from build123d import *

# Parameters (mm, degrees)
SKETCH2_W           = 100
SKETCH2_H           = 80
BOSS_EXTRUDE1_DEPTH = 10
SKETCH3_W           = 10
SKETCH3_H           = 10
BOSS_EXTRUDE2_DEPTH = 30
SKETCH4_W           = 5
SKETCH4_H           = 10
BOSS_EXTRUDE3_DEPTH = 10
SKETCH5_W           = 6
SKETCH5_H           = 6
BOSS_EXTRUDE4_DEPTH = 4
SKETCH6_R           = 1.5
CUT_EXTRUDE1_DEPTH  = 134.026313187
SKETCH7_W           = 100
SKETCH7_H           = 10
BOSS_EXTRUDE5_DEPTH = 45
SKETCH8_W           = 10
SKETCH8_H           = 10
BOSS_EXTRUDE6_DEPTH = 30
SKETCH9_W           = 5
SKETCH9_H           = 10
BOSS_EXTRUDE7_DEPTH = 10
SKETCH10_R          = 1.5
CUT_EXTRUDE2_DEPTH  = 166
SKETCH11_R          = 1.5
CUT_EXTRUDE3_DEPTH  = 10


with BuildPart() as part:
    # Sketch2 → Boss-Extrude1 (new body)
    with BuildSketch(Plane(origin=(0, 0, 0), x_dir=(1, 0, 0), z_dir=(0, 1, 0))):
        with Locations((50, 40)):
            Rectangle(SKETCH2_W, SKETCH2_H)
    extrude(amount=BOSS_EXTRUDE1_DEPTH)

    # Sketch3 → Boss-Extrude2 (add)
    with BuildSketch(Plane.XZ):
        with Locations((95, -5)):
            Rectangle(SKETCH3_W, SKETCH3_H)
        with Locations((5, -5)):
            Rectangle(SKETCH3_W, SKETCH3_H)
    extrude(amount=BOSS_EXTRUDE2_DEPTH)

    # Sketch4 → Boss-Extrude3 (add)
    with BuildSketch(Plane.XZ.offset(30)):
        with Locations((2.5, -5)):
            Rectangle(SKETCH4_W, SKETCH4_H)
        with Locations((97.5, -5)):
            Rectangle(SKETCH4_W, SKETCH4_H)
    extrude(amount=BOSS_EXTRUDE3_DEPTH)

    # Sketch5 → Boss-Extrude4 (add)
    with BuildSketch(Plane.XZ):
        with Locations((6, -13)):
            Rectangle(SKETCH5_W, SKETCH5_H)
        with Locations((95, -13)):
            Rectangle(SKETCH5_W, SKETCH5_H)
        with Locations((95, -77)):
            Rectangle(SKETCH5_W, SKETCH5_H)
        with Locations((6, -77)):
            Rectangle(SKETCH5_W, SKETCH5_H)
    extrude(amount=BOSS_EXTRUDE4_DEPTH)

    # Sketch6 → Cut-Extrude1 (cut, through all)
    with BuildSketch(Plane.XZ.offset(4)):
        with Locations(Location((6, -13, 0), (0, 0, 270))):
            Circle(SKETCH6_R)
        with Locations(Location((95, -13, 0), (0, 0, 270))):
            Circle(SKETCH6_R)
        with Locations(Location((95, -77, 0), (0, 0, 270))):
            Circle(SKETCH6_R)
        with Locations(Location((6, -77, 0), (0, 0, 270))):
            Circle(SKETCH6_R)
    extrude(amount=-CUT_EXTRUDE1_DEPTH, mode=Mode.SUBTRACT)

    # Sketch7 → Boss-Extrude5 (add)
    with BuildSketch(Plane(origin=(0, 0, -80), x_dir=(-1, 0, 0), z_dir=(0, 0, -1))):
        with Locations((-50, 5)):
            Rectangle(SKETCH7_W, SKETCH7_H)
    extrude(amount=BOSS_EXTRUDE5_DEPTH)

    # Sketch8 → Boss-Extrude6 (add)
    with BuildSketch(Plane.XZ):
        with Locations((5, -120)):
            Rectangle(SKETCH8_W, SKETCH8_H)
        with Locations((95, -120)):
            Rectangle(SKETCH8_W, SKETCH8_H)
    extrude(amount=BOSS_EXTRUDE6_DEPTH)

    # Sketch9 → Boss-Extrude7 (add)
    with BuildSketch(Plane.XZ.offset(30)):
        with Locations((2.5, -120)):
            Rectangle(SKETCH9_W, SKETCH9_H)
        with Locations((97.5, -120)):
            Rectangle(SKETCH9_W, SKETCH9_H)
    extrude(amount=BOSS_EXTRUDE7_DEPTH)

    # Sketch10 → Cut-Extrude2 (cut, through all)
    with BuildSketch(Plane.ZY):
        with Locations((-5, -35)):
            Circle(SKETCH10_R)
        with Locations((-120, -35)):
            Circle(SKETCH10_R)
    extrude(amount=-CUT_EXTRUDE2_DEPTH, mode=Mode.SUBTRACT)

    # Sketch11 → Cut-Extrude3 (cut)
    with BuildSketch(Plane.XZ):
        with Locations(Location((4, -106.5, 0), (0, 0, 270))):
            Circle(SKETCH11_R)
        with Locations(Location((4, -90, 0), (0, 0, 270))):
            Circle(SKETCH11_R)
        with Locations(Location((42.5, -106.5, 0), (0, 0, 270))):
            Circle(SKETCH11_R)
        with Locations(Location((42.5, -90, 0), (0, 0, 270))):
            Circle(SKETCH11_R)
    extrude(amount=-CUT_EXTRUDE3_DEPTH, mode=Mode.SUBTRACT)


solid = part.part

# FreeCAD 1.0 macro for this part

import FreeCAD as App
import Part
import Sketcher

V = App.Vector


def add_polygon(sketch, points):
    """Adds a closed chain of lines whose ends are joined by coincident constraints."""
    first, n = sketch.GeometryCount, len(points)
    for a, b in zip(points, points[1:] + points[:1]):
        sketch.addGeometry(Part.LineSegment(App.Vector(*a, 0), App.Vector(*b, 0)), False)
    for i in range(n):
        sketch.addConstraint(Sketcher.Constraint("Coincident", first + i, 2, first + (i + 1) % n, 1))

doc = App.newDocument("Part")
body = doc.addObject("PartDesign::Body", "Body")

sketch1 = body.newObject("Sketcher::SketchObject", "Sketch")
sketch1.AttachmentSupport = (doc.getObject("XZ_Plane"), [""])
sketch1.MapMode = "FlatFace"
add_polygon(sketch1, [(0, -80), (0, 0), (100, 0), (100, -80)])
sketch1.addConstraint(Sketcher.Constraint("Vertical", 0))
sketch1.addConstraint(Sketcher.Constraint("Horizontal", 1))
sketch1.addConstraint(Sketcher.Constraint("Vertical", 2))
sketch1.addConstraint(Sketcher.Constraint("Horizontal", 3))
sketch1.addConstraint(Sketcher.Constraint("Coincident", 0, 2, -1, 1))
sketch1.addConstraint(Sketcher.Constraint("DistanceX", 1, 1, 1, 2, 100.0))
sketch1.addConstraint(Sketcher.Constraint("DistanceY", 0, 1, 0, 2, 80.0))
pad1 = body.newObject("PartDesign::Pad", "Pad")
pad1.Profile = sketch1
pad1.Length = 10
pad1.Reversed = True

sketch2 = body.newObject("Sketcher::SketchObject", "Sketch001")
sketch2.AttachmentSupport = (doc.getObject("XZ_Plane"), [""])
sketch2.MapMode = "FlatFace"
add_polygon(sketch2, [(90, 0), (90, -10), (100, -10), (100, 0)])
add_polygon(sketch2, [(0, 0), (0, -10), (10, -10), (10, 0)])
sketch2.addConstraint(Sketcher.Constraint("Vertical", 0))
sketch2.addConstraint(Sketcher.Constraint("Horizontal", 1))
sketch2.addConstraint(Sketcher.Constraint("Vertical", 2))
sketch2.addConstraint(Sketcher.Constraint("Horizontal", 3))
sketch2.addConstraint(Sketcher.Constraint("Vertical", 4))
sketch2.addConstraint(Sketcher.Constraint("Horizontal", 5))
sketch2.addConstraint(Sketcher.Constraint("Vertical", 6))
sketch2.addConstraint(Sketcher.Constraint("Horizontal", 7))
sketch2.addConstraint(Sketcher.Constraint("Coincident", 7, 2, -1, 1))
sketch2.addConstraint(Sketcher.Constraint("PointOnObject", 2, 2, -1))
sketch2.addConstraint(Sketcher.Constraint("Horizontal", 1, 2, 4, 2))
sketch2.addConstraint(Sketcher.Constraint("Equal", 3, 5))
sketch2.addConstraint(Sketcher.Constraint("Equal", 7, 0))
sketch2.addConstraint(Sketcher.Constraint("DistanceX", 1, 1, 1, 2, 10.0))
sketch2.addConstraint(Sketcher.Constraint("DistanceX", -1, 1, 0, 2, 90.0))
pad2 = body.newObject("PartDesign::Pad", "Pad001")
pad2.Profile = sketch2
pad2.Length = 30

sketch3 = body.newObject("Sketcher::SketchObject", "Sketch002")
sketch3.AttachmentSupport = (doc.getObject("XZ_Plane"), [""])
sketch3.MapMode = "FlatFace"
sketch3.AttachmentOffset = App.Placement(V(0, 0, 30), App.Rotation())
add_polygon(sketch3, [(0, 0), (0, -10), (5, -10), (5, 0)])
add_polygon(sketch3, [(95, 0), (95, -10), (100, -10), (100, 0)])
sketch3.addConstraint(Sketcher.Constraint("Vertical", 0))
sketch3.addConstraint(Sketcher.Constraint("Horizontal", 1))
sketch3.addConstraint(Sketcher.Constraint("Vertical", 2))
sketch3.addConstraint(Sketcher.Constraint("Horizontal", 3))
sketch3.addConstraint(Sketcher.Constraint("Vertical", 4))
sketch3.addConstraint(Sketcher.Constraint("Horizontal", 5))
sketch3.addConstraint(Sketcher.Constraint("Vertical", 6))
sketch3.addConstraint(Sketcher.Constraint("Horizontal", 7))
sketch3.addConstraint(Sketcher.Constraint("Coincident", 3, 2, -1, 1))
sketch3.addConstraint(Sketcher.Constraint("PointOnObject", 6, 2, -1))
sketch3.addConstraint(Sketcher.Constraint("Horizontal", 1, 2, 4, 2))
sketch3.addConstraint(Sketcher.Constraint("Equal", 3, 5))
sketch3.addConstraint(Sketcher.Constraint("DistanceX", 1, 1, 1, 2, 5.0))
sketch3.addConstraint(Sketcher.Constraint("DistanceY", 0, 2, 0, 1, 10.0))
sketch3.addConstraint(Sketcher.Constraint("DistanceX", -1, 1, 4, 2, 95.0))
pad3 = body.newObject("PartDesign::Pad", "Pad002")
pad3.Profile = sketch3
pad3.Length = 10

sketch4 = body.newObject("Sketcher::SketchObject", "Sketch003")
sketch4.AttachmentSupport = (doc.getObject("XZ_Plane"), [""])
sketch4.MapMode = "FlatFace"
add_polygon(sketch4, [(3, -10), (3, -16), (9, -16), (9, -10)])
add_polygon(sketch4, [(92, -10), (92, -16), (98, -16), (98, -10)])
add_polygon(sketch4, [(92, -74), (92, -80), (98, -80), (98, -74)])
add_polygon(sketch4, [(3, -74), (3, -80), (9, -80), (9, -74)])
sketch4.addConstraint(Sketcher.Constraint("Vertical", 0))
sketch4.addConstraint(Sketcher.Constraint("Horizontal", 1))
sketch4.addConstraint(Sketcher.Constraint("Vertical", 2))
sketch4.addConstraint(Sketcher.Constraint("Horizontal", 3))
sketch4.addConstraint(Sketcher.Constraint("Vertical", 4))
sketch4.addConstraint(Sketcher.Constraint("Horizontal", 5))
sketch4.addConstraint(Sketcher.Constraint("Vertical", 6))
sketch4.addConstraint(Sketcher.Constraint("Horizontal", 7))
sketch4.addConstraint(Sketcher.Constraint("Vertical", 8))
sketch4.addConstraint(Sketcher.Constraint("Horizontal", 9))
sketch4.addConstraint(Sketcher.Constraint("Vertical", 10))
sketch4.addConstraint(Sketcher.Constraint("Horizontal", 11))
sketch4.addConstraint(Sketcher.Constraint("Vertical", 12))
sketch4.addConstraint(Sketcher.Constraint("Horizontal", 13))
sketch4.addConstraint(Sketcher.Constraint("Vertical", 14))
sketch4.addConstraint(Sketcher.Constraint("Horizontal", 15))
sketch4.addConstraint(Sketcher.Constraint("Horizontal", 1, 2, 4, 2))
sketch4.addConstraint(Sketcher.Constraint("Horizontal", 3, 2, 6, 2))
sketch4.addConstraint(Sketcher.Constraint("Horizontal", 9, 2, 12, 2))
sketch4.addConstraint(Sketcher.Constraint("Horizontal", 11, 2, 14, 2))
sketch4.addConstraint(Sketcher.Constraint("Vertical", 7, 2, 8, 2))
sketch4.addConstraint(Sketcher.Constraint("Vertical", 6, 2, 9, 2))
sketch4.addConstraint(Sketcher.Constraint("Vertical", 3, 2, 12, 2))
sketch4.addConstraint(Sketcher.Constraint("Vertical", 2, 2, 13, 2))
sketch4.addConstraint(Sketcher.Constraint("Equal", 3, 5))
sketch4.addConstraint(Sketcher.Constraint("Equal", 15, 0))
sketch4.addConstraint(Sketcher.Constraint("Equal", 6, 8))
sketch4.addConstraint(Sketcher.Constraint("DistanceX", 1, 1, 1, 2, 6.0))
sketch4.addConstraint(Sketcher.Constraint("DistanceX", -1, 1, 0, 2, 3.0))
sketch4.addConstraint(Sketcher.Constraint("DistanceY", 0, 2, -1, 1, 16.0))
sketch4.addConstraint(Sketcher.Constraint("DistanceX", -1, 1, 4, 2, 92.0))
sketch4.addConstraint(Sketcher.Constraint("DistanceY", 8, 2, -1, 1, 80.0))
pad4 = body.newObject("PartDesign::Pad", "Pad003")
pad4.Profile = sketch4
pad4.Length = 4

sketch5 = body.newObject("Sketcher::SketchObject", "Sketch004")
sketch5.AttachmentSupport = (doc.getObject("XZ_Plane"), [""])
sketch5.MapMode = "FlatFace"
sketch5.AttachmentOffset = App.Placement(V(0, 0, 4), App.Rotation())
sketch5.addGeometry(Part.Circle(V(6, -13, 0), V(0, 0, 1), 1.5), False)
sketch5.addGeometry(Part.Circle(V(95, -13, 0), V(0, 0, 1), 1.5), False)
sketch5.addGeometry(Part.Circle(V(95, -77, 0), V(0, 0, 1), 1.5), False)
sketch5.addGeometry(Part.Circle(V(6, -77, 0), V(0, 0, 1), 1.5), False)
sketch5.addConstraint(Sketcher.Constraint("Equal", 0, 1))
sketch5.addConstraint(Sketcher.Constraint("Equal", 1, 2))
sketch5.addConstraint(Sketcher.Constraint("Equal", 2, 3))
sketch5.addConstraint(Sketcher.Constraint("Horizontal", 0, 3, 1, 3))
sketch5.addConstraint(Sketcher.Constraint("Horizontal", 2, 3, 3, 3))
sketch5.addConstraint(Sketcher.Constraint("Vertical", 1, 3, 2, 3))
sketch5.addConstraint(Sketcher.Constraint("Vertical", 0, 3, 3, 3))
sketch5.addConstraint(Sketcher.Constraint("Diameter", 0, 3.0))
sketch5.addConstraint(Sketcher.Constraint("DistanceX", -1, 1, 0, 3, 6.0))
sketch5.addConstraint(Sketcher.Constraint("DistanceY", 0, 3, -1, 1, 13.0))
sketch5.addConstraint(Sketcher.Constraint("DistanceX", -1, 1, 1, 3, 95.0))
sketch5.addConstraint(Sketcher.Constraint("DistanceY", 2, 3, -1, 1, 77.0))
pocket1 = body.newObject("PartDesign::Pocket", "Pocket")
pocket1.Profile = sketch5
pocket1.Type = "ThroughAll"

sketch6 = body.newObject("Sketcher::SketchObject", "Sketch005")
sketch6.AttachmentSupport = (doc.getObject("XY_Plane"), [""])
sketch6.MapMode = "FlatFace"
sketch6.AttachmentOffset = App.Placement(V(0, 0, -80), App.Rotation())
add_polygon(sketch6, [(100, 10), (100, 0), (0, 0), (0, 10)])
sketch6.addConstraint(Sketcher.Constraint("Vertical", 0))
sketch6.addConstraint(Sketcher.Constraint("Horizontal", 1))
sketch6.addConstraint(Sketcher.Constraint("Vertical", 2))
sketch6.addConstraint(Sketcher.Constraint("Horizontal", 3))
sketch6.addConstraint(Sketcher.Constraint("Coincident", 1, 2, -1, 1))
sketch6.addConstraint(Sketcher.Constraint("DistanceX", 1, 2, 1, 1, 100.0))
sketch6.addConstraint(Sketcher.Constraint("DistanceY", 0, 2, 0, 1, 10.0))
pad5 = body.newObject("PartDesign::Pad", "Pad004")
pad5.Profile = sketch6
pad5.Length = 45
pad5.Reversed = True

sketch7 = body.newObject("Sketcher::SketchObject", "Sketch006")
sketch7.AttachmentSupport = (doc.getObject("XZ_Plane"), [""])
sketch7.MapMode = "FlatFace"
add_polygon(sketch7, [(0, -115), (0, -125), (10, -125), (10, -115)])
add_polygon(sketch7, [(90, -115), (90, -125), (100, -125), (100, -115)])
sketch7.addConstraint(Sketcher.Constraint("Vertical", 0))
sketch7.addConstraint(Sketcher.Constraint("Horizontal", 1))
sketch7.addConstraint(Sketcher.Constraint("Vertical", 2))
sketch7.addConstraint(Sketcher.Constraint("Horizontal", 3))
sketch7.addConstraint(Sketcher.Constraint("Vertical", 4))
sketch7.addConstraint(Sketcher.Constraint("Horizontal", 5))
sketch7.addConstraint(Sketcher.Constraint("Vertical", 6))
sketch7.addConstraint(Sketcher.Constraint("Horizontal", 7))
sketch7.addConstraint(Sketcher.Constraint("PointOnObject", 0, 2, -2))
sketch7.addConstraint(Sketcher.Constraint("Horizontal", 1, 2, 4, 2))
sketch7.addConstraint(Sketcher.Constraint("Horizontal", 3, 2, 6, 2))
sketch7.addConstraint(Sketcher.Constraint("Equal", 3, 5))
sketch7.addConstraint(Sketcher.Constraint("Equal", 7, 0))
sketch7.addConstraint(Sketcher.Constraint("DistanceX", 1, 1, 1, 2, 10.0))
sketch7.addConstraint(Sketcher.Constraint("DistanceY", 0, 2, -1, 1, 125.0))
sketch7.addConstraint(Sketcher.Constraint("DistanceX", -1, 1, 4, 2, 90.0))
pad6 = body.newObject("PartDesign::Pad", "Pad005")
pad6.Profile = sketch7
pad6.Length = 30

sketch8 = body.newObject("Sketcher::SketchObject", "Sketch007")
sketch8.AttachmentSupport = (doc.getObject("XZ_Plane"), [""])
sketch8.MapMode = "FlatFace"
sketch8.AttachmentOffset = App.Placement(V(0, 0, 30), App.Rotation())
add_polygon(sketch8, [(0, -115), (0, -125), (5, -125), (5, -115)])
add_polygon(sketch8, [(95, -115), (95, -125), (100, -125), (100, -115)])
sketch8.addConstraint(Sketcher.Constraint("Vertical", 0))
sketch8.addConstraint(Sketcher.Constraint("Horizontal", 1))
sketch8.addConstraint(Sketcher.Constraint("Vertical", 2))
sketch8.addConstraint(Sketcher.Constraint("Horizontal", 3))
sketch8.addConstraint(Sketcher.Constraint("Vertical", 4))
sketch8.addConstraint(Sketcher.Constraint("Horizontal", 5))
sketch8.addConstraint(Sketcher.Constraint("Vertical", 6))
sketch8.addConstraint(Sketcher.Constraint("Horizontal", 7))
sketch8.addConstraint(Sketcher.Constraint("PointOnObject", 0, 2, -2))
sketch8.addConstraint(Sketcher.Constraint("Horizontal", 1, 2, 4, 2))
sketch8.addConstraint(Sketcher.Constraint("Horizontal", 3, 2, 6, 2))
sketch8.addConstraint(Sketcher.Constraint("Equal", 3, 5))
sketch8.addConstraint(Sketcher.Constraint("DistanceX", 1, 1, 1, 2, 5.0))
sketch8.addConstraint(Sketcher.Constraint("DistanceY", 0, 2, 0, 1, 10.0))
sketch8.addConstraint(Sketcher.Constraint("DistanceY", 0, 2, -1, 1, 125.0))
sketch8.addConstraint(Sketcher.Constraint("DistanceX", -1, 1, 4, 2, 95.0))
pad7 = body.newObject("PartDesign::Pad", "Pad006")
pad7.Profile = sketch8
pad7.Length = 10

sketch9 = body.newObject("Sketcher::SketchObject", "Sketch008")
sketch9.AttachmentSupport = (doc.getObject("YZ_Plane"), [""])
sketch9.MapMode = "FlatFace"
sketch9.addGeometry(Part.Circle(V(-35, -5, 0), V(0, 0, 1), 1.5), False)
sketch9.addGeometry(Part.Circle(V(-35, -120, 0), V(0, 0, 1), 1.5), False)
sketch9.addConstraint(Sketcher.Constraint("Equal", 0, 1))
sketch9.addConstraint(Sketcher.Constraint("Vertical", 0, 3, 1, 3))
sketch9.addConstraint(Sketcher.Constraint("Diameter", 0, 3.0))
sketch9.addConstraint(Sketcher.Constraint("DistanceX", 0, 3, -1, 1, 35.0))
sketch9.addConstraint(Sketcher.Constraint("DistanceY", 0, 3, -1, 1, 5.0))
sketch9.addConstraint(Sketcher.Constraint("DistanceY", 1, 3, -1, 1, 120.0))
pocket2 = body.newObject("PartDesign::Pocket", "Pocket001")
pocket2.Profile = sketch9
pocket2.Type = "ThroughAll"
pocket2.Reversed = True

sketch10 = body.newObject("Sketcher::SketchObject", "Sketch009")
sketch10.AttachmentSupport = (doc.getObject("XZ_Plane"), [""])
sketch10.MapMode = "FlatFace"
sketch10.addGeometry(Part.Circle(V(4, -106.5, 0), V(0, 0, 1), 1.5), False)
sketch10.addGeometry(Part.Circle(V(4, -90, 0), V(0, 0, 1), 1.5), False)
sketch10.addGeometry(Part.Circle(V(42.5, -106.5, 0), V(0, 0, 1), 1.5), False)
sketch10.addGeometry(Part.Circle(V(42.5, -90, 0), V(0, 0, 1), 1.5), False)
sketch10.addConstraint(Sketcher.Constraint("Equal", 0, 1))
sketch10.addConstraint(Sketcher.Constraint("Equal", 1, 2))
sketch10.addConstraint(Sketcher.Constraint("Equal", 2, 3))
sketch10.addConstraint(Sketcher.Constraint("Horizontal", 0, 3, 2, 3))
sketch10.addConstraint(Sketcher.Constraint("Horizontal", 1, 3, 3, 3))
sketch10.addConstraint(Sketcher.Constraint("Vertical", 0, 3, 1, 3))
sketch10.addConstraint(Sketcher.Constraint("Vertical", 2, 3, 3, 3))
sketch10.addConstraint(Sketcher.Constraint("Diameter", 0, 3.0))
sketch10.addConstraint(Sketcher.Constraint("DistanceX", -1, 1, 0, 3, 4.0))
sketch10.addConstraint(Sketcher.Constraint("DistanceY", 1, 3, -1, 1, 90.0))
sketch10.addConstraint(Sketcher.Constraint("DistanceY", 0, 3, -1, 1, 106.5))
sketch10.addConstraint(Sketcher.Constraint("DistanceX", -1, 1, 2, 3, 42.5))
pocket3 = body.newObject("PartDesign::Pocket", "Pocket002")
pocket3.Profile = sketch10
pocket3.Length = 10

doc.recompute()
